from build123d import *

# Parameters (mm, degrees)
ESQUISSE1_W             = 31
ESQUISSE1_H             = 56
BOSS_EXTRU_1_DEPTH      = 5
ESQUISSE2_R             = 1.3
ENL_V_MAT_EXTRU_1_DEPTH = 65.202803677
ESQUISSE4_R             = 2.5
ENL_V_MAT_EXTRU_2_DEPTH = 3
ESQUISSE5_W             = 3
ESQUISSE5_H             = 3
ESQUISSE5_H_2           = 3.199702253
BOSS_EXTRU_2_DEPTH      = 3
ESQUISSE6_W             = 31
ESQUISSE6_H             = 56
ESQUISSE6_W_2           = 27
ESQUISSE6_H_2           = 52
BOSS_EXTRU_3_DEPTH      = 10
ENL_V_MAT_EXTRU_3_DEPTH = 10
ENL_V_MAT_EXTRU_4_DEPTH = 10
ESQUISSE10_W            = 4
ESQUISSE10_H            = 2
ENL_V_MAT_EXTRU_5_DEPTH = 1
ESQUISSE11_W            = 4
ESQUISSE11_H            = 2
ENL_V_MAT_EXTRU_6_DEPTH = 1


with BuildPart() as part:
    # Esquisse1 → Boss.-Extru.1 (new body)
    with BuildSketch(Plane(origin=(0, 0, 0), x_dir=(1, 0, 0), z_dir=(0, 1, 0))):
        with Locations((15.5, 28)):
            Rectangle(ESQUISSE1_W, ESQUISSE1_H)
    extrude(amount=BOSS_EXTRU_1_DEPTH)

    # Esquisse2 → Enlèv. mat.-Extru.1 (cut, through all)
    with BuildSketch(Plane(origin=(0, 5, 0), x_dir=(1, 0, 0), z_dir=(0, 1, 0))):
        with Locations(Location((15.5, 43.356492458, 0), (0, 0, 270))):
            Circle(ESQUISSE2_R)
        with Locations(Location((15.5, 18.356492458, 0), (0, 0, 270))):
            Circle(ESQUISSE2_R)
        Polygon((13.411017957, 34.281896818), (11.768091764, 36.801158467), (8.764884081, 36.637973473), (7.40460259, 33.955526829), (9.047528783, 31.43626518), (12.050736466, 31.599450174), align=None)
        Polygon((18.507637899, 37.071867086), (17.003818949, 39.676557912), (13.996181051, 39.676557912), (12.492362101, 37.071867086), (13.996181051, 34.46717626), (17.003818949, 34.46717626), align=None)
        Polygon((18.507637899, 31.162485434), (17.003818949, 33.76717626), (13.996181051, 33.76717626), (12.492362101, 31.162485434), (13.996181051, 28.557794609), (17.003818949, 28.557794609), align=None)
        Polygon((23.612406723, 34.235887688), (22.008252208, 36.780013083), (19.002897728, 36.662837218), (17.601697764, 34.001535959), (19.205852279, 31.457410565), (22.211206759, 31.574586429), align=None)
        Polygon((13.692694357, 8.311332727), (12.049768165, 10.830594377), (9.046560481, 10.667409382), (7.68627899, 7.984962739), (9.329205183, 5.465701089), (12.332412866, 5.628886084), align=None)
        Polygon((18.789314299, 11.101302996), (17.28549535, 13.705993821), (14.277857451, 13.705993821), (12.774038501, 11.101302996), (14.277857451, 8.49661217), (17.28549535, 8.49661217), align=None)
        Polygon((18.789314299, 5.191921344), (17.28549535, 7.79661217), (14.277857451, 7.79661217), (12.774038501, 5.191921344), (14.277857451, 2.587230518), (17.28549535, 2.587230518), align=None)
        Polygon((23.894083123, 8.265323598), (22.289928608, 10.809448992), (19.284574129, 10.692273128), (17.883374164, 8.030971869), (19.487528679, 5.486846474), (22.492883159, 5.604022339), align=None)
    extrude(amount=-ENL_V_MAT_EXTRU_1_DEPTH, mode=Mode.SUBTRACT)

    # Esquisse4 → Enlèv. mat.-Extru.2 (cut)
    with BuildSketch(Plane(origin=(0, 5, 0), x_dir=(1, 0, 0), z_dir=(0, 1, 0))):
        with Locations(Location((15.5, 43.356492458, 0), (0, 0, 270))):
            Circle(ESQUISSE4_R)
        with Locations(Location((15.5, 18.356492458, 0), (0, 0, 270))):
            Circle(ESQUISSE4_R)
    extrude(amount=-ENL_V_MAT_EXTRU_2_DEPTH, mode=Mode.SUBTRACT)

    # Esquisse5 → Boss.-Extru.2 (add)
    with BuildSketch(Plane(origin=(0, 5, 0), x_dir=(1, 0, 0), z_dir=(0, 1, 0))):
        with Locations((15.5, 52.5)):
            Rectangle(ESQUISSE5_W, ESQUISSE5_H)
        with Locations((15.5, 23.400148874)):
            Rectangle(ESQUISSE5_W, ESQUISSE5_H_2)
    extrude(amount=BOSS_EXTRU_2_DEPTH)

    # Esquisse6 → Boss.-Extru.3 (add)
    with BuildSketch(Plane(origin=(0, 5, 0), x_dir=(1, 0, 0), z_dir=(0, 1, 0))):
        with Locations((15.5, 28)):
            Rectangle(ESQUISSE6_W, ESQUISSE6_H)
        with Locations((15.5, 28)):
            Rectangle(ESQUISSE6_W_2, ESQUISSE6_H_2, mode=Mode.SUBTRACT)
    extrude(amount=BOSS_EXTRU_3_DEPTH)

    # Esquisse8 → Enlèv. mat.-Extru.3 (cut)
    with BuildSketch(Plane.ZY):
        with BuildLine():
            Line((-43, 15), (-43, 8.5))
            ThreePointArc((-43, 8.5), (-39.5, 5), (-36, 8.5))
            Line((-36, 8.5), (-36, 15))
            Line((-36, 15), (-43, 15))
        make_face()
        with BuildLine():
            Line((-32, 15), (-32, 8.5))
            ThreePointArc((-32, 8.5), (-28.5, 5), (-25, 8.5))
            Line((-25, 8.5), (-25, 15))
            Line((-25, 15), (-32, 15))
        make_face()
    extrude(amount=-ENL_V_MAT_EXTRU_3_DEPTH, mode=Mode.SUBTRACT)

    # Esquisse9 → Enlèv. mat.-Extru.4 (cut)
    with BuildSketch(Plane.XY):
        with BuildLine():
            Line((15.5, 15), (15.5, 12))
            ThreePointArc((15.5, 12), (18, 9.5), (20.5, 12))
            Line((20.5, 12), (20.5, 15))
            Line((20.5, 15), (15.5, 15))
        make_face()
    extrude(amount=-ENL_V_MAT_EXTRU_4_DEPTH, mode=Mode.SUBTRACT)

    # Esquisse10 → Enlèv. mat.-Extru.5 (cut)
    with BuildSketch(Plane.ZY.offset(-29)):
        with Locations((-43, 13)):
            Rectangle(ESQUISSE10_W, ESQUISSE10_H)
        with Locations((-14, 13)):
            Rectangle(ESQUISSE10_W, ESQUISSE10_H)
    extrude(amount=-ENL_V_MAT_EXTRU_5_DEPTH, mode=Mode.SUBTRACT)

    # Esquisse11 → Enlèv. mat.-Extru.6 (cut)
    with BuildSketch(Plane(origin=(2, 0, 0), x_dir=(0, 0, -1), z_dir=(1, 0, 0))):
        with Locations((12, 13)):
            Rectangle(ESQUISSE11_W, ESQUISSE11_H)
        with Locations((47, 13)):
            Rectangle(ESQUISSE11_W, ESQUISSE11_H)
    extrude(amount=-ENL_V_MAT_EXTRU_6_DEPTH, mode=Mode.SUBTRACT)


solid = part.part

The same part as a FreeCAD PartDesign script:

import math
import FreeCAD as App
import Part
import Sketcher

V = App.Vector
Q = App.Units.Quantity

doc = App.newDocument("Part")
body = doc.addObject("PartDesign::Body", "Body")

# Sketch on XZ plane
sketch1 = body.newObject("Sketcher::SketchObject", "Sketch")
sketch1.AttachmentSupport = (doc.getObject("XZ_Plane"), [""])
sketch1.MapMode = "FlatFace"
sketch1.addGeometry([
    Part.LineSegment(V(0, -56, 0), V(0, 0, 0)),
    Part.LineSegment(V(0, 0, 0), V(31, 0, 0)),
    Part.LineSegment(V(31, 0, 0), V(31, -56, 0)),
    Part.LineSegment(V(31, -56, 0), V(0, -56, 0)),
], False)
sketch1.addConstraint([
    Sketcher.Constraint("Coincident", 0, 2, 1, 1),
    Sketcher.Constraint("Coincident", 1, 2, 2, 1),
    Sketcher.Constraint("Coincident", 2, 2, 3, 1),
    Sketcher.Constraint("Coincident", 3, 2, 0, 1),
    Sketcher.Constraint("Vertical", 0),
    Sketcher.Constraint("Horizontal", 1),
    Sketcher.Constraint("Vertical", 2),
    Sketcher.Constraint("Horizontal", 3),
    Sketcher.Constraint("Coincident", 0, 2, -1, 1),
    Sketcher.Constraint("DistanceX", 1, 1, 1, 2, Q("31 mm")),
    Sketcher.Constraint("DistanceY", 0, 1, 0, 2, Q("56 mm")),
])
pad1 = body.newObject("PartDesign::Pad", "Pad")
pad1.Profile = sketch1
pad1.Length = 5
pad1.Reversed = True

# Sketch on XZ plane
sketch2 = body.newObject("Sketcher::SketchObject", "Sketch001")
sketch2.AttachmentSupport = (doc.getObject("XZ_Plane"), [""])
sketch2.MapMode = "FlatFace"
sketch2.AttachmentOffset = App.Placement(V(0, 0, -5), App.Rotation())
sketch2.addGeometry([
    Part.Circle(V(15.5, -43.4, 0), V(0, 0, 1), 1.3),  # 0
    Part.Circle(V(15.5, -18.4, 0), V(0, 0, 1), 1.3),  # 1
    Part.LineSegment(V(13.4, -34.3, 0), V(11.8, -36.8, 0)),  # 2
    Part.LineSegment(V(11.8, -36.8, 0), V(8.8, -36.6, 0)),  # 3
    Part.LineSegment(V(8.8, -36.6, 0), V(7.4, -34, 0)),  # 4
    Part.LineSegment(V(7.4, -34, 0), V(9, -31.4, 0)),  # 5
    Part.LineSegment(V(9, -31.4, 0), V(12.1, -31.6, 0)),  # 6
    Part.LineSegment(V(12.1, -31.6, 0), V(13.4, -34.3, 0)),  # 7
    Part.LineSegment(V(18.5, -37.1, 0), V(17, -39.7, 0)),  # 8
    Part.LineSegment(V(17, -39.7, 0), V(14, -39.7, 0)),  # 9
    Part.LineSegment(V(14, -39.7, 0), V(12.5, -37.1, 0)),  # 10
    Part.LineSegment(V(12.5, -37.1, 0), V(14, -34.5, 0)),  # 11
    Part.LineSegment(V(14, -34.5, 0), V(17, -34.5, 0)),  # 12
    Part.LineSegment(V(17, -34.5, 0), V(18.5, -37.1, 0)),  # 13
    Part.LineSegment(V(18.5, -31.2, 0), V(17, -33.8, 0)),  # 14
    Part.LineSegment(V(17, -33.8, 0), V(14, -33.8, 0)),  # 15
    Part.LineSegment(V(14, -33.8, 0), V(12.5, -31.2, 0)),  # 16
    Part.LineSegment(V(12.5, -31.2, 0), V(14, -28.6, 0)),  # 17
    Part.LineSegment(V(14, -28.6, 0), V(17, -28.6, 0)),  # 18
    Part.LineSegment(V(17, -28.6, 0), V(18.5, -31.2, 0)),  # 19
    Part.LineSegment(V(23.6, -34.2, 0), V(22, -36.8, 0)),  # 20
    Part.LineSegment(V(22, -36.8, 0), V(19, -36.7, 0)),  # 21
    Part.LineSegment(V(19, -36.7, 0), V(17.6, -34, 0)),  # 22
    Part.LineSegment(V(17.6, -34, 0), V(19.2, -31.5, 0)),  # 23
    Part.LineSegment(V(19.2, -31.5, 0), V(22.2, -31.6, 0)),  # 24
    Part.LineSegment(V(22.2, -31.6, 0), V(23.6, -34.2, 0)),  # 25
    Part.LineSegment(V(13.7, -8.3, 0), V(12, -10.8, 0)),  # 26
    Part.LineSegment(V(12, -10.8, 0), V(9, -10.7, 0)),  # 27
    Part.LineSegment(V(9, -10.7, 0), V(7.7, -8, 0)),  # 28
    Part.LineSegment(V(7.7, -8, 0), V(9.3, -5.5, 0)),  # 29
    Part.LineSegment(V(9.3, -5.5, 0), V(12.3, -5.6, 0)),  # 30
    Part.LineSegment(V(12.3, -5.6, 0), V(13.7, -8.3, 0)),  # 31
    Part.LineSegment(V(18.8, -11.1, 0), V(17.3, -13.7, 0)),  # 32
    Part.LineSegment(V(17.3, -13.7, 0), V(14.3, -13.7, 0)),  # 33
    Part.LineSegment(V(14.3, -13.7, 0), V(12.8, -11.1, 0)),  # 34
    Part.LineSegment(V(12.8, -11.1, 0), V(14.3, -8.5, 0)),  # 35
    Part.LineSegment(V(14.3, -8.5, 0), V(17.3, -8.5, 0)),  # 36
    Part.LineSegment(V(17.3, -8.5, 0), V(18.8, -11.1, 0)),  # 37
    Part.LineSegment(V(18.8, -5.2, 0), V(17.3, -7.8, 0)),  # 38
    Part.LineSegment(V(17.3, -7.8, 0), V(14.3, -7.8, 0)),  # 39
    Part.LineSegment(V(14.3, -7.8, 0), V(12.8, -5.2, 0)),  # 40
    Part.LineSegment(V(12.8, -5.2, 0), V(14.3, -2.6, 0)),  # 41
    Part.LineSegment(V(14.3, -2.6, 0), V(17.3, -2.6, 0)),  # 42
    Part.LineSegment(V(17.3, -2.6, 0), V(18.8, -5.2, 0)),  # 43
    Part.LineSegment(V(23.9, -8.3, 0), V(22.3, -10.8, 0)),  # 44
    Part.LineSegment(V(22.3, -10.8, 0), V(19.3, -10.7, 0)),  # 45
    Part.LineSegment(V(19.3, -10.7, 0), V(17.9, -8, 0)),  # 46
    Part.LineSegment(V(17.9, -8, 0), V(19.5, -5.5, 0)),  # 47
    Part.LineSegment(V(19.5, -5.5, 0), V(22.5, -5.6, 0)),  # 48
    Part.LineSegment(V(22.5, -5.6, 0), V(23.9, -8.3, 0)),  # 49
], False)
sketch2.addConstraint([
    Sketcher.Constraint("Coincident", 2, 2, 3, 1),
    Sketcher.Constraint("Coincident", 3, 2, 4, 1),
    Sketcher.Constraint("Coincident", 4, 2, 5, 1),
    Sketcher.Constraint("Coincident", 5, 2, 6, 1),
    Sketcher.Constraint("Coincident", 6, 2, 7, 1),
    Sketcher.Constraint("Coincident", 7, 2, 2, 1),
    Sketcher.Constraint("Coincident", 8, 2, 9, 1),
    Sketcher.Constraint("Coincident", 9, 2, 10, 1),
    Sketcher.Constraint("Coincident", 10, 2, 11, 1),
    Sketcher.Constraint("Coincident", 11, 2, 12, 1),
    Sketcher.Constraint("Coincident", 12, 2, 13, 1),
    Sketcher.Constraint("Coincident", 13, 2, 8, 1),
    Sketcher.Constraint("Coincident", 14, 2, 15, 1),
    Sketcher.Constraint("Coincident", 15, 2, 16, 1),
    Sketcher.Constraint("Coincident", 16, 2, 17, 1),
    Sketcher.Constraint("Coincident", 17, 2, 18, 1),
    Sketcher.Constraint("Coincident", 18, 2, 19, 1),
    Sketcher.Constraint("Coincident", 19, 2, 14, 1),
    Sketcher.Constraint("Coincident", 20, 2, 21, 1),
    Sketcher.Constraint("Coincident", 21, 2, 22, 1),
    Sketcher.Constraint("Coincident", 22, 2, 23, 1),
    Sketcher.Constraint("Coincident", 23, 2, 24, 1),
    Sketcher.Constraint("Coincident", 24, 2, 25, 1),
    Sketcher.Constraint("Coincident", 25, 2, 20, 1),
    Sketcher.Constraint("Coincident", 26, 2, 27, 1),
    Sketcher.Constraint("Coincident", 27, 2, 28, 1),
    Sketcher.Constraint("Coincident", 28, 2, 29, 1),
    Sketcher.Constraint("Coincident", 29, 2, 30, 1),
    Sketcher.Constraint("Coincident", 30, 2, 31, 1),
    Sketcher.Constraint("Coincident", 31, 2, 26, 1),
    Sketcher.Constraint("Coincident", 32, 2, 33, 1),
    Sketcher.Constraint("Coincident", 33, 2, 34, 1),
    Sketcher.Constraint("Coincident", 34, 2, 35, 1),
    Sketcher.Constraint("Coincident", 35, 2, 36, 1),
    Sketcher.Constraint("Coincident", 36, 2, 37, 1),
    Sketcher.Constraint("Coincident", 37, 2, 32, 1),
    Sketcher.Constraint("Coincident", 38, 2, 39, 1),
    Sketcher.Constraint("Coincident", 39, 2, 40, 1),
    Sketcher.Constraint("Coincident", 40, 2, 41, 1),
    Sketcher.Constraint("Coincident", 41, 2, 42, 1),
    Sketcher.Constraint("Coincident", 42, 2, 43, 1),
    Sketcher.Constraint("Coincident", 43, 2, 38, 1),
    Sketcher.Constraint("Coincident", 44, 2, 45, 1),
    Sketcher.Constraint("Coincident", 45, 2, 46, 1),
    Sketcher.Constraint("Coincident", 46, 2, 47, 1),
    Sketcher.Constraint("Coincident", 47, 2, 48, 1),
    Sketcher.Constraint("Coincident", 48, 2, 49, 1),
    Sketcher.Constraint("Coincident", 49, 2, 44, 1),
    Sketcher.Constraint("Horizontal", 9),
    Sketcher.Constraint("Horizontal", 12),
    Sketcher.Constraint("Horizontal", 15),
    Sketcher.Constraint("Horizontal", 18),
    Sketcher.Constraint("Horizontal", 33),
    Sketcher.Constraint("Horizontal", 36),
    Sketcher.Constraint("Horizontal", 39),
    Sketcher.Constraint("Horizontal", 42),
    Sketcher.Constraint("Equal", 0, 1),
    Sketcher.Constraint("Parallel", 2, 5),
    Sketcher.Constraint("Parallel", 3, 6),
    Sketcher.Constraint("Parallel", 4, 7),
    Sketcher.Constraint("Parallel", 8, 11),
    Sketcher.Constraint("Parallel", 10, 13),
    Sketcher.Constraint("Parallel", 11, 14),
    Sketcher.Constraint("Parallel", 13, 16),
    Sketcher.Constraint("Parallel", 14, 17),
    Sketcher.Constraint("Parallel", 16, 19),
    Sketcher.Constraint("Parallel", 20, 23),
    Sketcher.Constraint("Parallel", 21, 24),
    Sketcher.Constraint("Parallel", 22, 25),
    Sketcher.Constraint("Parallel", 5, 26),
    Sketcher.Constraint("Parallel", 6, 27),
    Sketcher.Constraint("Parallel", 7, 28),
    Sketcher.Constraint("Parallel", 26, 29),
    Sketcher.Constraint("Parallel", 27, 30),
    Sketcher.Constraint("Parallel", 28, 31),
    Sketcher.Constraint("Parallel", 17, 32),
    Sketcher.Constraint("Parallel", 19, 34),
    Sketcher.Constraint("Parallel", 32, 35),
    Sketcher.Constraint("Parallel", 34, 37),
    Sketcher.Constraint("Parallel", 35, 38),
    Sketcher.Constraint("Parallel", 37, 40),
    Sketcher.Constraint("Parallel", 38, 41),
    Sketcher.Constraint("Parallel", 40, 43),
    Sketcher.Constraint("Parallel", 23, 44),
    Sketcher.Constraint("Parallel", 24, 45),
    Sketcher.Constraint("Parallel", 25, 46),
    Sketcher.Constraint("Parallel", 44, 47),
    Sketcher.Constraint("Parallel", 45, 48),
    Sketcher.Constraint("Parallel", 46, 49),
    Sketcher.Constraint("Horizontal", 10, 2, 13, 2),
    Sketcher.Constraint("Horizontal", 16, 2, 19, 2),
    Sketcher.Constraint("Horizontal", 34, 2, 37, 2),
    Sketcher.Constraint("Horizontal", 40, 2, 43, 2),
    Sketcher.Constraint("Vertical", 0, 3, 1, 3),
    Sketcher.Constraint("Vertical", 9, 2, 11, 2),
    Sketcher.Constraint("Vertical", 8, 2, 12, 2),
    Sketcher.Constraint("Vertical", 12, 2, 14, 2),
    Sketcher.Constraint("Vertical", 11, 2, 15, 2),
    Sketcher.Constraint("Vertical", 10, 2, 16, 2),
    Sketcher.Constraint("Vertical", 15, 2, 17, 2),
    Sketcher.Constraint("Vertical", 33, 2, 35, 2),
    Sketcher.Constraint("Vertical", 36, 2, 38, 2),
    Sketcher.Constraint("Vertical", 35, 2, 39, 2),
    Sketcher.Constraint("Vertical", 34, 2, 40, 2),
    Sketcher.Constraint("Vertical", 39, 2, 41, 2),
    Sketcher.Constraint("Equal", 18, 33),
    Sketcher.Constraint("Equal", 2, 3),
    Sketcher.Constraint("Equal", 3, 4),
    Sketcher.Constraint("Equal", 4, 5),
    Sketcher.Constraint("Equal", 7, 8),
    Sketcher.Constraint("Equal", 19, 20),
    Sketcher.Constraint("Equal", 20, 21),
    Sketcher.Constraint("Equal", 21, 22),
    Sketcher.Constraint("Equal", 22, 23),
    Sketcher.Constraint("Equal", 25, 26),
    Sketcher.Constraint("Equal", 26, 27),
    Sketcher.Constraint("Equal", 27, 28),
    Sketcher.Constraint("Equal", 28, 29),
    Sketcher.Constraint("Equal", 31, 32),
    Sketcher.Constraint("Equal", 43, 44),
    Sketcher.Constraint("Equal", 44, 45),
    Sketcher.Constraint("Equal", 45, 46),
    Sketcher.Constraint("Equal", 46, 47),
    Sketcher.Constraint("Diameter", 0, Q("2.6 mm")),
    Sketcher.Constraint("Angle", 8, Q("-120 deg")),
    Sketcher.Constraint("DistanceY", 0, 3, 1, 3, Q("25 mm")),
    Sketcher.Constraint("DistanceX", -1, 1, 0, 3, Q("15.5 mm")),
    Sketcher.Constraint("DistanceY", 12, 2, 14, 2, Q("0.7 mm")),
    Sketcher.Constraint("DistanceY", 36, 2, 38, 2, Q("0.7 mm")),
    Sketcher.Constraint("DistanceY", 29, 2, -1, 1, Q("5.465701 mm")),
    Sketcher.Constraint("DistanceY", 8, 2, 2, 2, Q("2.875399 mm")),
    Sketcher.Constraint("DistanceX", 7, 2, 8, 2, Q("3.592801 mm")),
    Sketcher.Constraint("DistanceX", 22, 2, 21, 2, Q("1.4012 mm")),
    Sketcher.Constraint("DistanceY", 21, 2, 22, 2, Q("2.661301 mm")),
    Sketcher.Constraint("DistanceY", 24, 2, 19, 2, Q("0.412101 mm")),
    Sketcher.Constraint("DistanceY", 1, 3, 26, 2, Q("7.525898 mm")),
    Sketcher.Constraint("DistanceY", 17, 2, 26, 2, Q("17.7272 mm")),
    Sketcher.Constraint("DistanceY", 1, 3, 32, 2, Q("4.650499 mm")),
    Sketcher.Constraint("DistanceX", 31, 2, 32, 2, Q("3.592801 mm")),
    Sketcher.Constraint("DistanceY", 48, 2, 43, 2, Q("0.412101 mm")),
    Sketcher.Constraint("DistanceX", 9, 2, 9, 1, Q("3.007638 mm")),
    Sketcher.Constraint("DistanceX", -1, 1, 2, 2, Q("11.768092 mm")),
    Sketcher.Constraint("DistanceY", 2, 2, -1, 1, Q("36.801158 mm")),
    Sketcher.Constraint("DistanceX", -1, 1, 5, 2, Q("9.047529 mm")),
    Sketcher.Constraint("DistanceY", 6, 2, -1, 1, Q("31.59945 mm")),
    Sketcher.Constraint("DistanceY", 23, 2, -1, 1, Q("31.457411 mm")),
    Sketcher.Constraint("DistanceX", -1, 1, 26, 2, Q("12.049768 mm")),
    Sketcher.Constraint("DistanceX", -1, 1, 44, 2, Q("22.289929 mm")),
    Sketcher.Constraint("DistanceY", 44, 2, -1, 1, Q("10.809449 mm")),
    Sketcher.Constraint("DistanceX", 13, 2, 21, 2, Q("0.49526 mm")),
])
pocket1 = body.newObject("PartDesign::Pocket", "Pocket")
pocket1.Profile = sketch2
pocket1.Type = "ThroughAll"
pocket1.Reversed = True

# Sketch on XZ plane
sketch3 = body.newObject("Sketcher::SketchObject", "Sketch002")
sketch3.AttachmentSupport = (doc.getObject("XZ_Plane"), [""])
sketch3.MapMode = "FlatFace"
sketch3.AttachmentOffset = App.Placement(V(0, 0, -5), App.Rotation())
sketch3.addGeometry([
    Part.Circle(V(15.5, -43.4, 0), V(0, 0, 1), 2.5),
    Part.Circle(V(15.5, -18.4, 0), V(0, 0, 1), 2.5),
], False)
sketch3.addConstraint([
    Sketcher.Constraint("Equal", 0, 1),
    Sketcher.Constraint("Vertical", 0, 3, 1, 3),
    Sketcher.Constraint("Diameter", 0, Q("5 mm")),
    Sketcher.Constraint("DistanceY", 0, 3, 1, 3, Q("25 mm")),
    Sketcher.Constraint("DistanceX", -1, 1, 0, 3, Q("15.5 mm")),
    Sketcher.Constraint("DistanceY", 0, 3, -1, 1, Q("43.356492 mm")),
])
pocket2 = body.newObject("PartDesign::Pocket", "Pocket001")
pocket2.Profile = sketch3
pocket2.Length = 3
pocket2.Reversed = True

# Sketch on XZ plane
sketch4 = body.newObject("Sketcher::SketchObject", "Sketch003")
sketch4.AttachmentSupport = (doc.getObject("XZ_Plane"), [""])
sketch4.MapMode = "FlatFace"
sketch4.AttachmentOffset = App.Placement(V(0, 0, -5), App.Rotation())
sketch4.addGeometry([
    Part.LineSegment(V(14, -54, 0), V(14, -51, 0)),  # 0
    Part.LineSegment(V(14, -51, 0), V(17, -51, 0)),  # 1
    Part.LineSegment(V(17, -51, 0), V(17, -54, 0)),  # 2
    Part.LineSegment(V(17, -54, 0), V(14, -54, 0)),  # 3
    Part.LineSegment(V(14, -25, 0), V(14, -21.8, 0)),  # 4
    Part.LineSegment(V(14, -21.8, 0), V(17, -21.8, 0)),  # 5
    Part.LineSegment(V(17, -21.8, 0), V(17, -25, 0)),  # 6
    Part.LineSegment(V(17, -25, 0), V(14, -25, 0)),  # 7
], False)
sketch4.addConstraint([
    Sketcher.Constraint("Coincident", 0, 2, 1, 1),
    Sketcher.Constraint("Coincident", 1, 2, 2, 1),
    Sketcher.Constraint("Coincident", 2, 2, 3, 1),
    Sketcher.Constraint("Coincident", 3, 2, 0, 1),
    Sketcher.Constraint("Coincident", 4, 2, 5, 1),
    Sketcher.Constraint("Coincident", 5, 2, 6, 1),
    Sketcher.Constraint("Coincident", 6, 2, 7, 1),
    Sketcher.Constraint("Coincident", 7, 2, 4, 1),
    Sketcher.Constraint("Vertical", 0),
    Sketcher.Constraint("Horizontal", 1),
    Sketcher.Constraint("Vertical", 2),
    Sketcher.Constraint("Horizontal", 3),
    Sketcher.Constraint("Vertical", 4),
    Sketcher.Constraint("Horizontal", 5),
    Sketcher.Constraint("Vertical", 6),
    Sketcher.Constraint("Horizontal", 7),
    Sketcher.Constraint("Vertical", 3, 2, 4, 2),
    Sketcher.Constraint("Vertical", 2, 2, 5, 2),
    Sketcher.Constraint("Equal", 7, 0),
    Sketcher.Constraint("DistanceX", 1, 1, 1, 2, Q("3 mm")),
    Sketcher.Constraint("DistanceX", -1, 1, 0, 2, Q("14 mm")),
    Sketcher.Constraint("DistanceY", 0, 2, -1, 1, Q("51 mm")),
    Sketcher.Constraint("DistanceY", 6, 2, -1, 1, Q("25 mm")),
    Sketcher.Constraint("DistanceY", 4, 1, 4, 2, Q("3.199702 mm")),
])
pad2 = body.newObject("PartDesign::Pad", "Pad001")
pad2.Profile = sketch4
pad2.Length = 3
pad2.Reversed = True

# Sketch on XZ plane
sketch5 = body.newObject("Sketcher::SketchObject", "Sketch004")
sketch5.AttachmentSupport = (doc.getObject("XZ_Plane"), [""])
sketch5.MapMode = "FlatFace"
sketch5.AttachmentOffset = App.Placement(V(0, 0, -5), App.Rotation())
sketch5.addGeometry([
    Part.LineSegment(V(0, -56, 0), V(0, 0, 0)),  # 0
    Part.LineSegment(V(0, 0, 0), V(31, 0, 0)),  # 1
    Part.LineSegment(V(31, 0, 0), V(31, -56, 0)),  # 2
    Part.LineSegment(V(31, -56, 0), V(0, -56, 0)),  # 3
    Part.LineSegment(V(29, -2, 0), V(2, -2, 0)),  # 4
    Part.LineSegment(V(2, -2, 0), V(2, -54, 0)),  # 5
    Part.LineSegment(V(2, -54, 0), V(29, -54, 0)),  # 6
    Part.LineSegment(V(29, -54, 0), V(29, -2, 0)),  # 7
], False)
sketch5.addConstraint([
    Sketcher.Constraint("Coincident", 0, 2, 1, 1),
    Sketcher.Constraint("Coincident", 1, 2, 2, 1),
    Sketcher.Constraint("Coincident", 2, 2, 3, 1),
    Sketcher.Constraint("Coincident", 3, 2, 0, 1),
    Sketcher.Constraint("Coincident", 4, 2, 5, 1),
    Sketcher.Constraint("Coincident", 5, 2, 6, 1),
    Sketcher.Constraint("Coincident", 6, 2, 7, 1),
    Sketcher.Constraint("Coincident", 7, 2, 4, 1),
    Sketcher.Constraint("Vertical", 0),
    Sketcher.Constraint("Horizontal", 1),
    Sketcher.Constraint("Vertical", 2),
    Sketcher.Constraint("Horizontal", 3),
    Sketcher.Constraint("Horizontal", 4),
    Sketcher.Constraint("Vertical", 5),
    Sketcher.Constraint("Horizontal", 6),
    Sketcher.Constraint("Vertical", 7),
    Sketcher.Constraint("Coincident", 0, 2, -1, 1),
    Sketcher.Constraint("DistanceX", 1, 1, 1, 2, Q("31 mm")),
    Sketcher.Constraint("DistanceX", 4, 2, 4, 1, Q("27 mm")),
    Sketcher.Constraint("DistanceY", 0, 1, 0, 2, Q("56 mm")),
    Sketcher.Constraint("DistanceY", 5, 2, 5, 1, Q("52 mm")),
    Sketcher.Constraint("DistanceX", -1, 1, 4, 2, Q("2 mm")),
    Sketcher.Constraint("DistanceY", 4, 2, -1, 1, Q("2 mm")),
])
pad3 = body.newObject("PartDesign::Pad", "Pad002")
pad3.Profile = sketch5
pad3.Length = 10
pad3.Reversed = True

# Sketch on YZ plane
sketch6 = body.newObject("Sketcher::SketchObject", "Sketch005")
sketch6.AttachmentSupport = (doc.getObject("YZ_Plane"), [""])
sketch6.MapMode = "FlatFace"
sketch6.addGeometry([
    Part.LineSegment(V(15, -43, 0), V(8.5, -43, 0)),  # 0
    Part.ArcOfCircle(Part.Circle(V(8.5, -39.5, 0), V(0, 0, 1), 3.5), math.radians(90), math.radians(270)),  # 1
    Part.LineSegment(V(8.5, -36, 0), V(15, -36, 0)),  # 2
    Part.LineSegment(V(15, -36, 0), V(15, -43, 0)),  # 3
    Part.LineSegment(V(15, -32, 0), V(8.5, -32, 0)),  # 4
    Part.ArcOfCircle(Part.Circle(V(8.5, -28.5, 0), V(0, 0, 1), 3.5), math.radians(90), math.radians(270)),  # 5
    Part.LineSegment(V(8.5, -25, 0), V(15, -25, 0)),  # 6
    Part.LineSegment(V(15, -25, 0), V(15, -32, 0)),  # 7
], False)
sketch6.addConstraint([
    Sketcher.Constraint("Tangent", 0, 2, 1, 2),
    Sketcher.Constraint("Tangent", 1, 1, 2, 1),
    Sketcher.Constraint("Coincident", 2, 2, 3, 1),
    Sketcher.Constraint("Coincident", 3, 2, 0, 1),
    Sketcher.Constraint("Tangent", 4, 2, 5, 2),
    Sketcher.Constraint("Tangent", 5, 1, 6, 1),
    Sketcher.Constraint("Coincident", 6, 2, 7, 1),
    Sketcher.Constraint("Coincident", 7, 2, 4, 1),
    Sketcher.Constraint("Horizontal", 0),
    Sketcher.Constraint("Horizontal", 2),
    Sketcher.Constraint("Vertical", 3),
    Sketcher.Constraint("Horizontal", 4),
    Sketcher.Constraint("Horizontal", 6),
    Sketcher.Constraint("Vertical", 7),
    Sketcher.Constraint("Equal", 1, 5),
    Sketcher.Constraint("Vertical", 1, 3, 5, 3),
    Sketcher.Constraint("Vertical", 3, 2, 6, 2),
    Sketcher.Constraint("Radius", 1, Q("3.5 mm")),
    Sketcher.Constraint("DistanceX", 0, 2, 0, 1, Q("6.5 mm")),
    Sketcher.Constraint("DistanceY", 0, 2, -1, 1, Q("43 mm")),
    Sketcher.Constraint("DistanceX", -1, 1, 2, 2, Q("15 mm")),
    Sketcher.Constraint("DistanceY", 4, 2, -1, 1, Q("32 mm")),
])
pocket3 = body.newObject("PartDesign::Pocket", "Pocket002")
pocket3.Profile = sketch6
pocket3.Length = 10
pocket3.Reversed = True

# Sketch on XY plane
sketch7 = body.newObject("Sketcher::SketchObject", "Sketch006")
sketch7.AttachmentSupport = (doc.getObject("XY_Plane"), [""])
sketch7.MapMode = "FlatFace"
sketch7.addGeometry([
    Part.LineSegment(V(15.5, 15, 0), V(15.5, 12, 0)),
    Part.ArcOfCircle(Part.Circle(V(18, 12, 0), V(0, 0, 1), 2.5), math.radians(180), math.radians(360)),
    Part.LineSegment(V(20.5, 12, 0), V(20.5, 15, 0)),
    Part.LineSegment(V(20.5, 15, 0), V(15.5, 15, 0)),
], False)
sketch7.addConstraint([
    Sketcher.Constraint("Tangent", 0, 2, 1, 1),
    Sketcher.Constraint("Tangent", 1, 2, 2, 1),
    Sketcher.Constraint("Coincident", 2, 2, 3, 1),
    Sketcher.Constraint("Coincident", 3, 2, 0, 1),
    Sketcher.Constraint("Vertical", 0),
    Sketcher.Constraint("Vertical", 2),
    Sketcher.Constraint("Horizontal", 3),
    Sketcher.Constraint("Radius", 1, Q("2.5 mm")),
    Sketcher.Constraint("DistanceY", 0, 2, 0, 1, Q("3 mm")),
    Sketcher.Constraint("DistanceX", -1, 1, 1, 3, Q("18 mm")),
    Sketcher.Constraint("DistanceY", -1, 1, 1, 3, Q("12 mm")),
])
pocket4 = body.newObject("PartDesign::Pocket", "Pocket003")
pocket4.Profile = sketch7
pocket4.Length = 10

# Sketch on YZ plane
sketch8 = body.newObject("Sketcher::SketchObject", "Sketch007")
sketch8.AttachmentSupport = (doc.getObject("YZ_Plane"), [""])
sketch8.MapMode = "FlatFace"
sketch8.AttachmentOffset = App.Placement(V(0, 0, 29), App.Rotation())
sketch8.addGeometry([
    Part.LineSegment(V(14, -45, 0), V(12, -45, 0)),  # 0
    Part.LineSegment(V(12, -45, 0), V(12, -41, 0)),  # 1
    Part.LineSegment(V(12, -41, 0), V(14, -41, 0)),  # 2
    Part.LineSegment(V(14, -41, 0), V(14, -45, 0)),  # 3
    Part.LineSegment(V(14, -16, 0), V(12, -16, 0)),  # 4
    Part.LineSegment(V(12, -16, 0), V(12, -12, 0)),  # 5
    Part.LineSegment(V(12, -12, 0), V(14, -12, 0)),  # 6
    Part.LineSegment(V(14, -12, 0), V(14, -16, 0)),  # 7
], False)
sketch8.addConstraint([
    Sketcher.Constraint("Coincident", 0, 2, 1, 1),
    Sketcher.Constraint("Coincident", 1, 2, 2, 1),
    Sketcher.Constraint("Coincident", 2, 2, 3, 1),
    Sketcher.Constraint("Coincident", 3, 2, 0, 1),
    Sketcher.Constraint("Coincident", 4, 2, 5, 1),
    Sketcher.Constraint("Coincident", 5, 2, 6, 1),
    Sketcher.Constraint("Coincident", 6, 2, 7, 1),
    Sketcher.Constraint("Coincident", 7, 2, 4, 1),
    Sketcher.Constraint("Horizontal", 0),
    Sketcher.Constraint("Vertical", 1),
    Sketcher.Constraint("Horizontal", 2),
    Sketcher.Constraint("Vertical", 3),
    Sketcher.Constraint("Horizontal", 4),
    Sketcher.Constraint("Vertical", 5),
    Sketcher.Constraint("Horizontal", 6),
    Sketcher.Constraint("Vertical", 7),
    Sketcher.Constraint("Vertical", 1, 2, 4, 2),
    Sketcher.Constraint("Vertical", 3, 2, 6, 2),
    Sketcher.Constraint("Equal", 3, 5),
    Sketcher.Constraint("DistanceX", 0, 2, 0, 1, Q("2 mm")),
    Sketcher.Constraint("DistanceY", 1, 1, 1, 2, Q("4 mm")),
    Sketcher.Constraint("DistanceX", -1, 1, 0, 2, Q("12 mm")),
    Sketcher.Constraint("DistanceY", 0, 2, -1, 1, Q("45 mm")),
    Sketcher.Constraint("DistanceY", 4, 2, -1, 1, Q("16 mm")),
])
pocket5 = body.newObject("PartDesign::Pocket", "Pocket004")
pocket5.Profile = sketch8
pocket5.Length = 1
pocket5.Reversed = True

# Sketch on YZ plane
sketch9 = body.newObject("Sketcher::SketchObject", "Sketch008")
sketch9.AttachmentSupport = (doc.getObject("YZ_Plane"), [""])
sketch9.MapMode = "FlatFace"
sketch9.AttachmentOffset = App.Placement(V(0, 0, 2), App.Rotation())
sketch9.addGeometry([
    Part.LineSegment(V(14, -10, 0), V(12, -10, 0)),  # 0
    Part.LineSegment(V(12, -10, 0), V(12, -14, 0)),  # 1
    Part.LineSegment(V(12, -14, 0), V(14, -14, 0)),  # 2
    Part.LineSegment(V(14, -14, 0), V(14, -10, 0)),  # 3
    Part.LineSegment(V(14, -45, 0), V(12, -45, 0)),  # 4
    Part.LineSegment(V(12, -45, 0), V(12, -49, 0)),  # 5
    Part.LineSegment(V(12, -49, 0), V(14, -49, 0)),  # 6
    Part.LineSegment(V(14, -49, 0), V(14, -45, 0)),  # 7
], False)
sketch9.addConstraint([
    Sketcher.Constraint("Coincident", 0, 2, 1, 1),
    Sketcher.Constraint("Coincident", 1, 2, 2, 1),
    Sketcher.Constraint("Coincident", 2, 2, 3, 1),
    Sketcher.Constraint("Coincident", 3, 2, 0, 1),
    Sketcher.Constraint("Coincident", 4, 2, 5, 1),
    Sketcher.Constraint("Coincident", 5, 2, 6, 1),
    Sketcher.Constraint("Coincident", 6, 2, 7, 1),
    Sketcher.Constraint("Coincident", 7, 2, 4, 1),
    Sketcher.Constraint("Horizontal", 0),
    Sketcher.Constraint("Vertical", 1),
    Sketcher.Constraint("Horizontal", 2),
    Sketcher.Constraint("Vertical", 3),
    Sketcher.Constraint("Horizontal", 4),
    Sketcher.Constraint("Vertical", 5),
    Sketcher.Constraint("Horizontal", 6),
    Sketcher.Constraint("Vertical", 7),
    Sketcher.Constraint("Vertical", 1, 2, 4, 2),
    Sketcher.Constraint("Vertical", 3, 2, 6, 2),
    Sketcher.Constraint("Equal", 3, 5),
    Sketcher.Constraint("DistanceX", 0, 2, 0, 1, Q("2 mm")),
    Sketcher.Constraint("DistanceY", 1, 2, 1, 1, Q("4 mm")),
    Sketcher.Constraint("DistanceX", -1, 1, 0, 2, Q("12 mm")),
    Sketcher.Constraint("DistanceY", 0, 2, -1, 1, Q("10 mm")),
    Sketcher.Constraint("DistanceY", 4, 2, -1, 1, Q("45 mm")),
])
pocket6 = body.newObject("PartDesign::Pocket", "Pocket005")
pocket6.Profile = sketch9
pocket6.Length = 1

doc.recompute()
